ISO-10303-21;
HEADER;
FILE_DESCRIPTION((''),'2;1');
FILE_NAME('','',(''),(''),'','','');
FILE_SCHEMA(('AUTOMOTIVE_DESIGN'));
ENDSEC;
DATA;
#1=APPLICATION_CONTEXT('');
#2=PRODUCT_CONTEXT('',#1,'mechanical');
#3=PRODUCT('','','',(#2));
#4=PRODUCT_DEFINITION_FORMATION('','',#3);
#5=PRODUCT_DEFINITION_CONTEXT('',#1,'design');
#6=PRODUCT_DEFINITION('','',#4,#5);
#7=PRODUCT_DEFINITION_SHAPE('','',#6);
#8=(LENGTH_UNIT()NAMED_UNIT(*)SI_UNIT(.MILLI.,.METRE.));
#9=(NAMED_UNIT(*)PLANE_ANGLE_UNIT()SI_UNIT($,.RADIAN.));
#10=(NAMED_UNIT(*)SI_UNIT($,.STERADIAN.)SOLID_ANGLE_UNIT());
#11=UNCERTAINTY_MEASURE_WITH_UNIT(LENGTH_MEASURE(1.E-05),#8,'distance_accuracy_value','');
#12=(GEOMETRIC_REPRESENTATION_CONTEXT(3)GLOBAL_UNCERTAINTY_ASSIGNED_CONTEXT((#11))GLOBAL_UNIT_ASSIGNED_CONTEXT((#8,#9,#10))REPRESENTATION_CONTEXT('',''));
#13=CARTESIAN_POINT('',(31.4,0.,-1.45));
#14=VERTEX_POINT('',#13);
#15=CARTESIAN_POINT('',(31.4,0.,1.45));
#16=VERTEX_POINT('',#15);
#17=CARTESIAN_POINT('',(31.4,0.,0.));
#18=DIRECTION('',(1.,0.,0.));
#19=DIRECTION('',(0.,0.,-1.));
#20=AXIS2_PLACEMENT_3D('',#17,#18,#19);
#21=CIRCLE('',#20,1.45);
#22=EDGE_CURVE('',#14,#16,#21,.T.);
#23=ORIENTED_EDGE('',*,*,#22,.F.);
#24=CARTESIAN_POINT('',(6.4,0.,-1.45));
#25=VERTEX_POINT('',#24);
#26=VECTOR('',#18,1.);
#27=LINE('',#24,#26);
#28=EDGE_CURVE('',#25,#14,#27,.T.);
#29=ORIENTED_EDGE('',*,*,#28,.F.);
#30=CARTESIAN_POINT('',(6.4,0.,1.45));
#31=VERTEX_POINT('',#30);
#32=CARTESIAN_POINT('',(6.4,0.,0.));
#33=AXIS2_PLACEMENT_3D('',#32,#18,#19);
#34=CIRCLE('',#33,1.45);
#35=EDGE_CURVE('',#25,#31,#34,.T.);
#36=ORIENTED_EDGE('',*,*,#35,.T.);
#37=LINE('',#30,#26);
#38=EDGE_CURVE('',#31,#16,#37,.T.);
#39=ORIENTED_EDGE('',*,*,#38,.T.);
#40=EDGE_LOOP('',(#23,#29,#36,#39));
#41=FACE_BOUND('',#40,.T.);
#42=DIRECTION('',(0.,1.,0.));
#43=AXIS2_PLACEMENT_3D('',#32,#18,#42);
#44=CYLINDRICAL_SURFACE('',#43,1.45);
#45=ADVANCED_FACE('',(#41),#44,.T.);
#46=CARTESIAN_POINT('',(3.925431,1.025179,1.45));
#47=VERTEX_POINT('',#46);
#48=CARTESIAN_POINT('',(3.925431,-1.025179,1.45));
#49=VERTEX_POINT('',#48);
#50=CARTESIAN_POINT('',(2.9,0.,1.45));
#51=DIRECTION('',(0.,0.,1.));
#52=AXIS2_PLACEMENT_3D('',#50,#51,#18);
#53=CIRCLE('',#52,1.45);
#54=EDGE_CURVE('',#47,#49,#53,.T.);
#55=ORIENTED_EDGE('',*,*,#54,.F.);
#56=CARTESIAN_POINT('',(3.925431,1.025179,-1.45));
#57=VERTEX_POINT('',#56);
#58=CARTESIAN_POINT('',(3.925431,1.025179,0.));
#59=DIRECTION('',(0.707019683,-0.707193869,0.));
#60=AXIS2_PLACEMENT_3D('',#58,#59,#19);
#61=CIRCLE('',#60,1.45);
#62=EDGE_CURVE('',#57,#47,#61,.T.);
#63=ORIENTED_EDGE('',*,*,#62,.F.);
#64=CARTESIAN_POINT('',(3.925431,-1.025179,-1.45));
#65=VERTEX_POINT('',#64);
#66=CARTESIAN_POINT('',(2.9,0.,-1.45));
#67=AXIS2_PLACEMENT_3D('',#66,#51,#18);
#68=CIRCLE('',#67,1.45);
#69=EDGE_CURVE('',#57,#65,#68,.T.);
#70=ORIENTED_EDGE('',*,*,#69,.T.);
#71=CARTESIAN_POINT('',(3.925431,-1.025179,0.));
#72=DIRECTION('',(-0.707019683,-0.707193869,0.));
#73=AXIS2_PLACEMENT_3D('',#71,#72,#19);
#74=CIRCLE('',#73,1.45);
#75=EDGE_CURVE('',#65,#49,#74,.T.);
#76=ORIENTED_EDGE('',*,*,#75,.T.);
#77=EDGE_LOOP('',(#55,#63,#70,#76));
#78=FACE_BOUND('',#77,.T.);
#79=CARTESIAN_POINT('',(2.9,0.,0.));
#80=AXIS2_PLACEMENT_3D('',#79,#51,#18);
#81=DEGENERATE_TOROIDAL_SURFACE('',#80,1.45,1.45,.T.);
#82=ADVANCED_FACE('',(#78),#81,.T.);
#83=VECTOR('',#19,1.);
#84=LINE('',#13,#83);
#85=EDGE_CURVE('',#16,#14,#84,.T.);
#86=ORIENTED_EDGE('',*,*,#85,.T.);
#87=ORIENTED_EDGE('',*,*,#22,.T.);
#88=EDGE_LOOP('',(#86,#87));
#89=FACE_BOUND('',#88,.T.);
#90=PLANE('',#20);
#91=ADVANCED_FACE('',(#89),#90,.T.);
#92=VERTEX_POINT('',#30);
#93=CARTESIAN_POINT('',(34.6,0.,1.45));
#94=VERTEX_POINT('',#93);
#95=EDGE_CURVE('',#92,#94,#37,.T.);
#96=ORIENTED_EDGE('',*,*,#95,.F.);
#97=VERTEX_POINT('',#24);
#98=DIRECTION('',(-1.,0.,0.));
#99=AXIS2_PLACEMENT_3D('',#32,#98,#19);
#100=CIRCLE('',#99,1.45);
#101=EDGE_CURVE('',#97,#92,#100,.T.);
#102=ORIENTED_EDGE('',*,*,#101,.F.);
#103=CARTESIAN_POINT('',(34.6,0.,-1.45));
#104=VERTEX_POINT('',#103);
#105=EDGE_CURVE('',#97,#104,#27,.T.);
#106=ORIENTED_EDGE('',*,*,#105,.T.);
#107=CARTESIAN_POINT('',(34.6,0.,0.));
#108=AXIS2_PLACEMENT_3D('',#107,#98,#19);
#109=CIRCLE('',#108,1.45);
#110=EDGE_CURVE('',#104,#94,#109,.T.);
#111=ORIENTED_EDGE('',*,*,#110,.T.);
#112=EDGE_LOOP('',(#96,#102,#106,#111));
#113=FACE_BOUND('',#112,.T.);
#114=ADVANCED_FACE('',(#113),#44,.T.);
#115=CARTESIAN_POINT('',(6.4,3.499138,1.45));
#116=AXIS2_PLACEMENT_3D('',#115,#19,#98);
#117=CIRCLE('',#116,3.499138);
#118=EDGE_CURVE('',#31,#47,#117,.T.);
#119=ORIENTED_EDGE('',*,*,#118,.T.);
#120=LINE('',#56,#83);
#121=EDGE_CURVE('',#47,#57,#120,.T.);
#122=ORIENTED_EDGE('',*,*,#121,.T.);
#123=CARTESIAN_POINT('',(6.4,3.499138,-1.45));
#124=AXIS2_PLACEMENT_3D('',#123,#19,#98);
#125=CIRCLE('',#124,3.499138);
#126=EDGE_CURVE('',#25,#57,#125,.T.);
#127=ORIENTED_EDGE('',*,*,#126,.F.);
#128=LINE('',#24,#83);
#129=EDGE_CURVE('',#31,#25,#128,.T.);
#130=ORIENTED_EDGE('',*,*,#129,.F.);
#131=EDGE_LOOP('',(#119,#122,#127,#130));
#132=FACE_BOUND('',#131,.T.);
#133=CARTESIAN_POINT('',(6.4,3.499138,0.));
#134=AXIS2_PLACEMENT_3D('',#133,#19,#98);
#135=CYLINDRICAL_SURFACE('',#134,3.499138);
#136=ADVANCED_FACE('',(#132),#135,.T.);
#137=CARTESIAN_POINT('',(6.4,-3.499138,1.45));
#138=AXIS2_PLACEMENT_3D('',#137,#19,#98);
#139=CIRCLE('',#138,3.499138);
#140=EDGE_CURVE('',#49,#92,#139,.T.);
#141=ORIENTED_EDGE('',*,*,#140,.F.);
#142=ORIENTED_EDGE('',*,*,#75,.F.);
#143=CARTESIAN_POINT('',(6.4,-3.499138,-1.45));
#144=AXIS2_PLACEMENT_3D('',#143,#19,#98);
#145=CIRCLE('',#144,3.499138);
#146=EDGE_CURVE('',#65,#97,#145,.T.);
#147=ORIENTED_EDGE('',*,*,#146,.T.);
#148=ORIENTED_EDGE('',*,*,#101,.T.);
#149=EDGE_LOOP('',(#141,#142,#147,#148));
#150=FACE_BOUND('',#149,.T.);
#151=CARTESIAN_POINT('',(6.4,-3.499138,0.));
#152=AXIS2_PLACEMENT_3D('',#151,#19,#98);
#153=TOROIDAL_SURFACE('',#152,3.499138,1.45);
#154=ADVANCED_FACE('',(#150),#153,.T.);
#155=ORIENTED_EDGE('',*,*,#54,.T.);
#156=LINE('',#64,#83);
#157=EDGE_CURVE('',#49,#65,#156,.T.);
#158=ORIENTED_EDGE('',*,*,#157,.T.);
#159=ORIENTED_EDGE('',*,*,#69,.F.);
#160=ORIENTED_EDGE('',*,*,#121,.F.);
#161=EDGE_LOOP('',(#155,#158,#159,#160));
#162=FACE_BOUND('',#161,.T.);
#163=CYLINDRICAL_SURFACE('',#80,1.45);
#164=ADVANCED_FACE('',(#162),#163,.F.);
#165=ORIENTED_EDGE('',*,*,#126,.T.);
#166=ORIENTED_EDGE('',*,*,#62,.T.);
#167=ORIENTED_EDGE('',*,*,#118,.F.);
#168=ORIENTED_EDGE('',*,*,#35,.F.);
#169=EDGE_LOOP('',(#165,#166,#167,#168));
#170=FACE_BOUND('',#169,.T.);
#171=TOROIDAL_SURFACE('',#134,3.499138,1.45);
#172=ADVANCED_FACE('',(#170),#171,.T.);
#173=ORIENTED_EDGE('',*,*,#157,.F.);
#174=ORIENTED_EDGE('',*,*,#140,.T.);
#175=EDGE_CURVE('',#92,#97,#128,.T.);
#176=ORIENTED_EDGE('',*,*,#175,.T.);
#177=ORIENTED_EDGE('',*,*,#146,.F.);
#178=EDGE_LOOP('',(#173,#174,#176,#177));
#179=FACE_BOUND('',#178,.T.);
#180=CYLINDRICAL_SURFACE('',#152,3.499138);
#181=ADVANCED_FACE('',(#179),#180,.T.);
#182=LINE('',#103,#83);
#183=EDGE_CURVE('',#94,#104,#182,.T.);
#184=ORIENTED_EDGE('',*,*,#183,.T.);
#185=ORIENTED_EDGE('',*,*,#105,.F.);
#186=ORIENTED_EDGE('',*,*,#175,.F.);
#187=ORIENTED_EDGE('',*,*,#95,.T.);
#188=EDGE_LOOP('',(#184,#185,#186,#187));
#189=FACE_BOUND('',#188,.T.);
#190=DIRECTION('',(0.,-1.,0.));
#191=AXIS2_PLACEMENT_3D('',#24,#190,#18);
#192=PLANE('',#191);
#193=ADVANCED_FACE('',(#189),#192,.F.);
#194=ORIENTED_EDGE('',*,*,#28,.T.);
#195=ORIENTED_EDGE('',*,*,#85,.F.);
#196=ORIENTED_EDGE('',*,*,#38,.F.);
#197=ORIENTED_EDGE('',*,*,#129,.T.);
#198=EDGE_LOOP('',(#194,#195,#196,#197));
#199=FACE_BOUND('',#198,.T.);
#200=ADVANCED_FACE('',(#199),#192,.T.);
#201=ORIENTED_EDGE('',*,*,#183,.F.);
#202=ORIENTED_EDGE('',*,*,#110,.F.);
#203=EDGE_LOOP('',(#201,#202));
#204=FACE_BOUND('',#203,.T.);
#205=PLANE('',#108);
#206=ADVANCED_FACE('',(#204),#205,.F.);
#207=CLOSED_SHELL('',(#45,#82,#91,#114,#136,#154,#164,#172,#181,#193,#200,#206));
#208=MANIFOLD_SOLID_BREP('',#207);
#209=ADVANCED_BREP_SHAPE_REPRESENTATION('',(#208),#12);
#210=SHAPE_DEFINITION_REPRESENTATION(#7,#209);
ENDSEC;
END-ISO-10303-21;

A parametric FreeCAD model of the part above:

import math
import FreeCAD as App
import Part
import Sketcher
from FreeCAD import Vector

doc = App.newDocument("Part")
body = doc.addObject("PartDesign::Body", "Body")

# Sketch on YZ plane
sketch1 = body.newObject("Sketcher::SketchObject", "Sketch")
sketch1.AttachmentSupport = (doc.getObject("YZ_Plane"), [""])
sketch1.MapMode = "FlatFace"
sketch1.AttachmentOffset = App.Placement(Vector(0, 0, 31.4), App.Rotation())
sketch1.addGeometry(Part.LineSegment(Vector(0, 1.4, 0), Vector(0, -1.4, 0)), False)
sketch1.addGeometry(Part.ArcOfCircle(Part.Circle(Vector(0, 0, 0), Vector(0, 0, 1), 1.4), math.radians(-90), math.radians(90)), False)
sketch1.addConstraint(Sketcher.Constraint("Coincident", 0, 1, 1, 2))
sketch1.addConstraint(Sketcher.Constraint("Coincident", 1, 1, 0, 2))
sketch1.addConstraint(Sketcher.Constraint("Vertical", 0))
sketch1.addConstraint(Sketcher.Constraint("Coincident", 1, 3, -1, 1))
sketch1.addConstraint(Sketcher.Constraint("PointOnObject", 0, 1, -2))
sketch1.addConstraint(Sketcher.Constraint("Radius", 1, 1.45))

# Sketch on XY plane
sketch2 = body.newObject("Sketcher::SketchObject", "Sketch001")
sketch2.AttachmentSupport = (doc.getObject("XY_Plane"), [""])
sketch2.MapMode = "FlatFace"
sketch2.addGeometry(Part.LineSegment(Vector(31.4, 1.4, 0), Vector(6.4, 1.4, 0)), False)
sketch2.addGeometry(Part.ArcOfCircle(Part.Circle(Vector(6.4, 3.5, 0), Vector(0, 0, 1), 2), math.radians(-135), math.radians(-90)), False)
sketch2.addGeometry(Part.ArcOfCircle(Part.Circle(Vector(2.9, 0, 0), Vector(0, 0, 1), 2.9), math.radians(45), math.radians(315)), False)
sketch2.addGeometry(Part.ArcOfCircle(Part.Circle(Vector(6.4, -3.5, 0), Vector(0, 0, 1), 2), math.radians(90), math.radians(135)), False)
sketch2.addGeometry(Part.LineSegment(Vector(6.4, -1.4, 0), Vector(34.6, -1.4, 0)), False)
sketch2.addConstraint(Sketcher.Constraint("Tangent", 0, 2, 1, 2))
sketch2.addConstraint(Sketcher.Constraint("Tangent", 1, 1, 2, 1))
sketch2.addConstraint(Sketcher.Constraint("Tangent", 2, 2, 3, 2))
sketch2.addConstraint(Sketcher.Constraint("Tangent", 3, 1, 4, 1))
sketch2.addConstraint(Sketcher.Constraint("Horizontal", 0))
sketch2.addConstraint(Sketcher.Constraint("Horizontal", 4))
sketch2.addConstraint(Sketcher.Constraint("Equal", 1, 3))
sketch2.addConstraint(Sketcher.Constraint("Symmetric", 1, 3, 3, 3, -1))
sketch2.addConstraint(Sketcher.Constraint("Radius", 2, 2.9))
sketch2.addConstraint(Sketcher.Constraint("DistanceX", 0, 2, 0, 1, 25.0))
sketch2.addConstraint(Sketcher.Constraint("DistanceX", 4, 1, 4, 2, 28.2))
sketch2.addConstraint(Sketcher.Constraint("DistanceX", -1, 1, 1, 3, 6.4))
sketch2.addConstraint(Sketcher.Constraint("DistanceX", -1, 1, 2, 3, 2.9))
sketch2.addConstraint(Sketcher.Constraint("DistanceY", 3, 1, 0, 2, 2.9))
doc.recompute()

additivepipe = body.newObject("PartDesign::AdditivePipe", "AdditivePipe")
additivepipe.Profile = sketch1
additivepipe.Spine = (sketch2, ["Edge1", "Edge2", "Edge3", "Edge4", "Edge5"])

doc.recompute()
